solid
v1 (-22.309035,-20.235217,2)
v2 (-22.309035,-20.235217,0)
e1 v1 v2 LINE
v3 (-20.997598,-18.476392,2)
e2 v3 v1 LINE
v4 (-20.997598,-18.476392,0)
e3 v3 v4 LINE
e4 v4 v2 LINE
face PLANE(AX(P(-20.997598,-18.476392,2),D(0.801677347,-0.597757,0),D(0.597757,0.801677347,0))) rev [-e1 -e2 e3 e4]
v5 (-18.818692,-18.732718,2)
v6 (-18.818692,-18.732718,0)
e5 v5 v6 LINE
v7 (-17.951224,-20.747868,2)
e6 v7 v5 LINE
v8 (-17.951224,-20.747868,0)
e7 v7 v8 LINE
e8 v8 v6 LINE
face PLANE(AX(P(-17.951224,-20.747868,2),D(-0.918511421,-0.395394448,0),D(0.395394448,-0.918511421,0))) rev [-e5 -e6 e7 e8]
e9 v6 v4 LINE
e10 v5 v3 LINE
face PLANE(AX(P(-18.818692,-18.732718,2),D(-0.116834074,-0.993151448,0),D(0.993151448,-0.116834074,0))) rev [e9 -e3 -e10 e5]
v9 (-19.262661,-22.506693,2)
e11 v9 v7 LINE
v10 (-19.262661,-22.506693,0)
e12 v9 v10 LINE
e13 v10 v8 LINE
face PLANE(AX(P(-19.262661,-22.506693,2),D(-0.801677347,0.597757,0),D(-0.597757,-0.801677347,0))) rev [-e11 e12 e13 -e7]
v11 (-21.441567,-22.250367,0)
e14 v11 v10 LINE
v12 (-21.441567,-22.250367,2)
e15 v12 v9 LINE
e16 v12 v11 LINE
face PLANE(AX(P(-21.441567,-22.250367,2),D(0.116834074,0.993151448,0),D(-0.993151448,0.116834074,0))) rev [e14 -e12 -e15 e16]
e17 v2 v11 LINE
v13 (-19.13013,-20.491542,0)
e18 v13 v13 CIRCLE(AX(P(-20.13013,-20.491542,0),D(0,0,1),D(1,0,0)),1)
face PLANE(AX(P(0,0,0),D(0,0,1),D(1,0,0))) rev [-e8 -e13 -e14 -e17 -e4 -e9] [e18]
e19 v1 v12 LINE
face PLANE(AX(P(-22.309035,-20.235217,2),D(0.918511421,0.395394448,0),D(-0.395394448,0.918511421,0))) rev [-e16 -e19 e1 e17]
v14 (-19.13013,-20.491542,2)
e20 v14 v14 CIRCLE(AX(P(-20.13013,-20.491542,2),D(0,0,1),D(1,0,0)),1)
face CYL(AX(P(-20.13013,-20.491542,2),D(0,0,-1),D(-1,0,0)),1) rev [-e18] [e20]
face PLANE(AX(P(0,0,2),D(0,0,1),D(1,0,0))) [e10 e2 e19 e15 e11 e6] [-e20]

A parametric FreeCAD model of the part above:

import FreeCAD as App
import Part
import Sketcher

V = App.Vector
Q = App.Units.Quantity


def add_polygon(sketch, points):
    """Adds a closed chain of lines whose ends are joined by coincident constraints."""
    first, n = sketch.GeometryCount, len(points)
    for a, b in zip(points, points[1:] + points[:1]):
        sketch.addGeometry(Part.LineSegment(App.Vector(*a, 0), App.Vector(*b, 0)), False)
    for i in range(n):
        sketch.addConstraint(Sketcher.Constraint("Coincident", first + i, 2, first + (i + 1) % n, 1))

doc = App.newDocument("Part")
body = doc.addObject("PartDesign::Body", "Body")

# Sketch on XY plane
sketch1 = doc.addObject("Sketcher::SketchObject", "Sketch")
body.addObject(sketch1)
sketch1.AttachmentSupport = (doc.XY_Plane, [""])
sketch1.MapMode = "FlatFace"
add_polygon(sketch1, [(-18.8, -18.7), (-21, -18.5), (-22.3, -20.2), (-21.4, -22.3), (-19.3, -22.5), (-18, -20.7)])  # lines 0-5
sketch1.addGeometry(Part.Circle(V(-20.1, -20.5, 0), V(0, 0, 1), 1), False)  # 6
sketch1.addConstraint([
    Sketcher.Constraint("Parallel", 0, 3),
    Sketcher.Constraint("Parallel", 1, 4),
    Sketcher.Constraint("Parallel", 2, 5),
    Sketcher.Constraint("Equal", 0, 1),
    Sketcher.Constraint("Equal", 1, 2),
    Sketcher.Constraint("Equal", 2, 3),
    Sketcher.Constraint("Diameter", 6, Q("2 mm")),
    Sketcher.Constraint("DistanceY", 3, 2, 0, 2, Q("4.030301 mm")),
    Sketcher.Constraint("DistanceY", 2, 2, 4, 2, Q("1.502499 mm")),
    Sketcher.Constraint("Distance", 0, Q("2.193931 mm")),
    Sketcher.Constraint("DistanceX", 6, 3, -1, 1, Q("20.13013 mm")),
    Sketcher.Constraint("DistanceY", 0, 2, -1, 1, Q("18.476392 mm")),
    Sketcher.Constraint("DistanceX", 3, 2, -1, 1, Q("19.262661 mm")),
    Sketcher.Constraint("DistanceY", 4, 2, -1, 1, Q("20.747868 mm")),
    Sketcher.Constraint("DistanceY", 6, 3, 0, 2, Q("2.015151 mm")),
])
pad1 = doc.addObject("PartDesign::Pad", "Pad")
body.addObject(pad1)
pad1.Profile = sketch1
pad1.Length = 2

doc.recompute()
